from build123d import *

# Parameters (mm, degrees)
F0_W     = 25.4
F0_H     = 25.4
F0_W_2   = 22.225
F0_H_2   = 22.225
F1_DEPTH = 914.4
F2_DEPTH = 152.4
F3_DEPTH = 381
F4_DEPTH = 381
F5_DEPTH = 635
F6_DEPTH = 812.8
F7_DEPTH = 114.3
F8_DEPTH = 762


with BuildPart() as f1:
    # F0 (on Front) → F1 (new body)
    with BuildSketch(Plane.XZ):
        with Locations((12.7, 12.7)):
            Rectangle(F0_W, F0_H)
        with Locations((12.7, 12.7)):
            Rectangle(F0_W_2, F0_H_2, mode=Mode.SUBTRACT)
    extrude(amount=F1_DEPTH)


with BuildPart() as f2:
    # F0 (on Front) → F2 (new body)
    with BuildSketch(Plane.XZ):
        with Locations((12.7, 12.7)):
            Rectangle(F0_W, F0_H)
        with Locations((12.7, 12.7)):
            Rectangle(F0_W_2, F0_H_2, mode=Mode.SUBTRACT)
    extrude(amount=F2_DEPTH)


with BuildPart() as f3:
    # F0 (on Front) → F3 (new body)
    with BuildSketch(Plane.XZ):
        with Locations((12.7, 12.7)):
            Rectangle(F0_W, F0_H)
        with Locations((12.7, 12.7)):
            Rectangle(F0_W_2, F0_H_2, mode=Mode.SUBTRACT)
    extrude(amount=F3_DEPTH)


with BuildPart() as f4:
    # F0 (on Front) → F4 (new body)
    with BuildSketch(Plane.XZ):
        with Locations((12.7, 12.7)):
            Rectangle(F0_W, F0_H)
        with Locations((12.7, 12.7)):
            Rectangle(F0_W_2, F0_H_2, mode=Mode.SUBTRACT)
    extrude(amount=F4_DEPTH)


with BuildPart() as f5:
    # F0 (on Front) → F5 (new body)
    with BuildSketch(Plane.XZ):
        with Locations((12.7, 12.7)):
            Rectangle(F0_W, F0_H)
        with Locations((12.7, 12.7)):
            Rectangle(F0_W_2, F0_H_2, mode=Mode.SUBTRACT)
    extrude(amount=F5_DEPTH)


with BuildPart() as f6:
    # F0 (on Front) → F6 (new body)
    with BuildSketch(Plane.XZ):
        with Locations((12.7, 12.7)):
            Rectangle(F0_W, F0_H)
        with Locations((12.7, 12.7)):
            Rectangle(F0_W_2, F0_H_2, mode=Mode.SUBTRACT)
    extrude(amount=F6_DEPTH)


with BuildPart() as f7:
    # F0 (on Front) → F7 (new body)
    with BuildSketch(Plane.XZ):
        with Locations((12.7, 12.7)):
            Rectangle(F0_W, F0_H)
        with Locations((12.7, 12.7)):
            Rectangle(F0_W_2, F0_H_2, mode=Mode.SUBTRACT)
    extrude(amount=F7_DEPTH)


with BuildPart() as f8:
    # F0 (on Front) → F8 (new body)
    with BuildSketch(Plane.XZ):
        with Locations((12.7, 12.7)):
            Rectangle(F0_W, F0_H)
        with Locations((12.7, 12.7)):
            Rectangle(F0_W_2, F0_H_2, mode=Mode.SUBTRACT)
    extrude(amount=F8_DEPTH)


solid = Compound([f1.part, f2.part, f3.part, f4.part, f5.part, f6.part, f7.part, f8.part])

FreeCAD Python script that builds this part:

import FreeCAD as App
import Part
import Sketcher
from FreeCAD import Vector
Q = App.Units.Quantity

doc = App.newDocument("Part")
body = doc.addObject("PartDesign::Body", "Body")

sketch1 = body.newObject("Sketcher::SketchObject", "Sketch")
sketch1.AttachmentSupport = (doc.getObject("XZ_Plane"), [""])
sketch1.MapMode = "FlatFace"
sketch1.addGeometry(Part.LineSegment(Vector(0, 25, 0), Vector(0, 0, 0)), False)
sketch1.addGeometry(Part.LineSegment(Vector(0, 0, 0), Vector(25, 0, 0)), False)
sketch1.addGeometry(Part.LineSegment(Vector(25, 0, 0), Vector(25, 25, 0)), False)
sketch1.addGeometry(Part.LineSegment(Vector(25, 25, 0), Vector(0, 25, 0)), False)
sketch1.addGeometry(Part.LineSegment(Vector(24, 2, 0), Vector(2, 2, 0)), False)
sketch1.addGeometry(Part.LineSegment(Vector(2, 2, 0), Vector(2, 24, 0)), False)
sketch1.addGeometry(Part.LineSegment(Vector(2, 24, 0), Vector(24, 24, 0)), False)
sketch1.addGeometry(Part.LineSegment(Vector(24, 24, 0), Vector(24, 2, 0)), False)
sketch1.addConstraint(Sketcher.Constraint("Coincident", 0, 2, 1, 1))
sketch1.addConstraint(Sketcher.Constraint("Coincident", 1, 2, 2, 1))
sketch1.addConstraint(Sketcher.Constraint("Coincident", 2, 2, 3, 1))
sketch1.addConstraint(Sketcher.Constraint("Coincident", 3, 2, 0, 1))
sketch1.addConstraint(Sketcher.Constraint("Coincident", 4, 2, 5, 1))
sketch1.addConstraint(Sketcher.Constraint("Coincident", 5, 2, 6, 1))
sketch1.addConstraint(Sketcher.Constraint("Coincident", 6, 2, 7, 1))
sketch1.addConstraint(Sketcher.Constraint("Coincident", 7, 2, 4, 1))
sketch1.addConstraint(Sketcher.Constraint("Vertical", 0))
sketch1.addConstraint(Sketcher.Constraint("Horizontal", 1))
sketch1.addConstraint(Sketcher.Constraint("Vertical", 2))
sketch1.addConstraint(Sketcher.Constraint("Horizontal", 3))
sketch1.addConstraint(Sketcher.Constraint("Horizontal", 4))
sketch1.addConstraint(Sketcher.Constraint("Vertical", 5))
sketch1.addConstraint(Sketcher.Constraint("Horizontal", 6))
sketch1.addConstraint(Sketcher.Constraint("Vertical", 7))
sketch1.addConstraint(Sketcher.Constraint("Coincident", 0, 2, -1, 1))
sketch1.addConstraint(Sketcher.Constraint("Equal", 3, 0))
sketch1.addConstraint(Sketcher.Constraint("Equal", 6, 5))
sketch1.addConstraint(Sketcher.Constraint("DistanceX", 1, 1, 1, 2, Q("1 in")))
sketch1.addConstraint(Sketcher.Constraint("DistanceX", 4, 2, 4, 1, Q("0.875 in")))
sketch1.addConstraint(Sketcher.Constraint("DistanceX", -1, 1, 4, 2, Q("0.0625 in")))
sketch1.addConstraint(Sketcher.Constraint("DistanceY", -1, 1, 4, 2, Q("0.0625 in")))
pad1 = body.newObject("PartDesign::Pad", "Pad")
pad1.Profile = sketch1
pad1.Length = Q("36 in")
body2 = doc.addObject("PartDesign::Body", "Body001")

sketch2 = body2.newObject("Sketcher::SketchObject", "Sketch001")
sketch2.AttachmentSupport = (doc.getObject("XZ_Plane001"), [""])
sketch2.MapMode = "FlatFace"
sketch2.addGeometry(Part.LineSegment(Vector(0, 25, 0), Vector(0, 0, 0)), False)
sketch2.addGeometry(Part.LineSegment(Vector(0, 0, 0), Vector(25, 0, 0)), False)
sketch2.addGeometry(Part.LineSegment(Vector(25, 0, 0), Vector(25, 25, 0)), False)
sketch2.addGeometry(Part.LineSegment(Vector(25, 25, 0), Vector(0, 25, 0)), False)
sketch2.addGeometry(Part.LineSegment(Vector(24, 2, 0), Vector(2, 2, 0)), False)
sketch2.addGeometry(Part.LineSegment(Vector(2, 2, 0), Vector(2, 24, 0)), False)
sketch2.addGeometry(Part.LineSegment(Vector(2, 24, 0), Vector(24, 24, 0)), False)
sketch2.addGeometry(Part.LineSegment(Vector(24, 24, 0), Vector(24, 2, 0)), False)
sketch2.addConstraint(Sketcher.Constraint("Coincident", 0, 2, 1, 1))
sketch2.addConstraint(Sketcher.Constraint("Coincident", 1, 2, 2, 1))
sketch2.addConstraint(Sketcher.Constraint("Coincident", 2, 2, 3, 1))
sketch2.addConstraint(Sketcher.Constraint("Coincident", 3, 2, 0, 1))
sketch2.addConstraint(Sketcher.Constraint("Coincident", 4, 2, 5, 1))
sketch2.addConstraint(Sketcher.Constraint("Coincident", 5, 2, 6, 1))
sketch2.addConstraint(Sketcher.Constraint("Coincident", 6, 2, 7, 1))
sketch2.addConstraint(Sketcher.Constraint("Coincident", 7, 2, 4, 1))
sketch2.addConstraint(Sketcher.Constraint("Vertical", 0))
sketch2.addConstraint(Sketcher.Constraint("Horizontal", 1))
sketch2.addConstraint(Sketcher.Constraint("Vertical", 2))
sketch2.addConstraint(Sketcher.Constraint("Horizontal", 3))
sketch2.addConstraint(Sketcher.Constraint("Horizontal", 4))
sketch2.addConstraint(Sketcher.Constraint("Vertical", 5))
sketch2.addConstraint(Sketcher.Constraint("Horizontal", 6))
sketch2.addConstraint(Sketcher.Constraint("Vertical", 7))
sketch2.addConstraint(Sketcher.Constraint("Coincident", 0, 2, -1, 1))
sketch2.addConstraint(Sketcher.Constraint("Equal", 3, 0))
sketch2.addConstraint(Sketcher.Constraint("Equal", 6, 5))
sketch2.addConstraint(Sketcher.Constraint("DistanceX", 1, 1, 1, 2, Q("1 in")))
sketch2.addConstraint(Sketcher.Constraint("DistanceX", 4, 2, 4, 1, Q("0.875 in")))
sketch2.addConstraint(Sketcher.Constraint("DistanceX", -1, 1, 4, 2, Q("0.0625 in")))
sketch2.addConstraint(Sketcher.Constraint("DistanceY", -1, 1, 4, 2, Q("0.0625 in")))
pad2 = body2.newObject("PartDesign::Pad", "Pad001")
pad2.Profile = sketch2
pad2.Length = Q("6 in")
body3 = doc.addObject("PartDesign::Body", "Body002")

sketch3 = body3.newObject("Sketcher::SketchObject", "Sketch002")
sketch3.AttachmentSupport = (doc.getObject("XZ_Plane002"), [""])
sketch3.MapMode = "FlatFace"
sketch3.addGeometry(Part.LineSegment(Vector(0, 25, 0), Vector(0, 0, 0)), False)
sketch3.addGeometry(Part.LineSegment(Vector(0, 0, 0), Vector(25, 0, 0)), False)
sketch3.addGeometry(Part.LineSegment(Vector(25, 0, 0), Vector(25, 25, 0)), False)
sketch3.addGeometry(Part.LineSegment(Vector(25, 25, 0), Vector(0, 25, 0)), False)
sketch3.addGeometry(Part.LineSegment(Vector(24, 2, 0), Vector(2, 2, 0)), False)
sketch3.addGeometry(Part.LineSegment(Vector(2, 2, 0), Vector(2, 24, 0)), False)
sketch3.addGeometry(Part.LineSegment(Vector(2, 24, 0), Vector(24, 24, 0)), False)
sketch3.addGeometry(Part.LineSegment(Vector(24, 24, 0), Vector(24, 2, 0)), False)
sketch3.addConstraint(Sketcher.Constraint("Coincident", 0, 2, 1, 1))
sketch3.addConstraint(Sketcher.Constraint("Coincident", 1, 2, 2, 1))
sketch3.addConstraint(Sketcher.Constraint("Coincident", 2, 2, 3, 1))
sketch3.addConstraint(Sketcher.Constraint("Coincident", 3, 2, 0, 1))
sketch3.addConstraint(Sketcher.Constraint("Coincident", 4, 2, 5, 1))
sketch3.addConstraint(Sketcher.Constraint("Coincident", 5, 2, 6, 1))
sketch3.addConstraint(Sketcher.Constraint("Coincident", 6, 2, 7, 1))
sketch3.addConstraint(Sketcher.Constraint("Coincident", 7, 2, 4, 1))
sketch3.addConstraint(Sketcher.Constraint("Vertical", 0))
sketch3.addConstraint(Sketcher.Constraint("Horizontal", 1))
sketch3.addConstraint(Sketcher.Constraint("Vertical", 2))
sketch3.addConstraint(Sketcher.Constraint("Horizontal", 3))
sketch3.addConstraint(Sketcher.Constraint("Horizontal", 4))
sketch3.addConstraint(Sketcher.Constraint("Vertical", 5))
sketch3.addConstraint(Sketcher.Constraint("Horizontal", 6))
sketch3.addConstraint(Sketcher.Constraint("Vertical", 7))
sketch3.addConstraint(Sketcher.Constraint("Coincident", 0, 2, -1, 1))
sketch3.addConstraint(Sketcher.Constraint("Equal", 3, 0))
sketch3.addConstraint(Sketcher.Constraint("Equal", 6, 5))
sketch3.addConstraint(Sketcher.Constraint("DistanceX", 1, 1, 1, 2, Q("1 in")))
sketch3.addConstraint(Sketcher.Constraint("DistanceX", 4, 2, 4, 1, Q("0.875 in")))
sketch3.addConstraint(Sketcher.Constraint("DistanceX", -1, 1, 4, 2, Q("0.0625 in")))
sketch3.addConstraint(Sketcher.Constraint("DistanceY", -1, 1, 4, 2, Q("0.0625 in")))
pad3 = body3.newObject("PartDesign::Pad", "Pad002")
pad3.Profile = sketch3
pad3.Length = Q("15 in")
body4 = doc.addObject("PartDesign::Body", "Body003")

sketch4 = body4.newObject("Sketcher::SketchObject", "Sketch003")
sketch4.AttachmentSupport = (doc.getObject("XZ_Plane003"), [""])
sketch4.MapMode = "FlatFace"
sketch4.addGeometry(Part.LineSegment(Vector(0, 25, 0), Vector(0, 0, 0)), False)
sketch4.addGeometry(Part.LineSegment(Vector(0, 0, 0), Vector(25, 0, 0)), False)
sketch4.addGeometry(Part.LineSegment(Vector(25, 0, 0), Vector(25, 25, 0)), False)
sketch4.addGeometry(Part.LineSegment(Vector(25, 25, 0), Vector(0, 25, 0)), False)
sketch4.addGeometry(Part.LineSegment(Vector(24, 2, 0), Vector(2, 2, 0)), False)
sketch4.addGeometry(Part.LineSegment(Vector(2, 2, 0), Vector(2, 24, 0)), False)
sketch4.addGeometry(Part.LineSegment(Vector(2, 24, 0), Vector(24, 24, 0)), False)
sketch4.addGeometry(Part.LineSegment(Vector(24, 24, 0), Vector(24, 2, 0)), False)
sketch4.addConstraint(Sketcher.Constraint("Coincident", 0, 2, 1, 1))
sketch4.addConstraint(Sketcher.Constraint("Coincident", 1, 2, 2, 1))
sketch4.addConstraint(Sketcher.Constraint("Coincident", 2, 2, 3, 1))
sketch4.addConstraint(Sketcher.Constraint("Coincident", 3, 2, 0, 1))
sketch4.addConstraint(Sketcher.Constraint("Coincident", 4, 2, 5, 1))
sketch4.addConstraint(Sketcher.Constraint("Coincident", 5, 2, 6, 1))
sketch4.addConstraint(Sketcher.Constraint("Coincident", 6, 2, 7, 1))
sketch4.addConstraint(Sketcher.Constraint("Coincident", 7, 2, 4, 1))
sketch4.addConstraint(Sketcher.Constraint("Vertical", 0))
sketch4.addConstraint(Sketcher.Constraint("Horizontal", 1))
sketch4.addConstraint(Sketcher.Constraint("Vertical", 2))
sketch4.addConstraint(Sketcher.Constraint("Horizontal", 3))
sketch4.addConstraint(Sketcher.Constraint("Horizontal", 4))
sketch4.addConstraint(Sketcher.Constraint("Vertical", 5))
sketch4.addConstraint(Sketcher.Constraint("Horizontal", 6))
sketch4.addConstraint(Sketcher.Constraint("Vertical", 7))
sketch4.addConstraint(Sketcher.Constraint("Coincident", 0, 2, -1, 1))
sketch4.addConstraint(Sketcher.Constraint("Equal", 3, 0))
sketch4.addConstraint(Sketcher.Constraint("Equal", 6, 5))
sketch4.addConstraint(Sketcher.Constraint("DistanceX", 1, 1, 1, 2, Q("1 in")))
sketch4.addConstraint(Sketcher.Constraint("DistanceX", 4, 2, 4, 1, Q("0.875 in")))
sketch4.addConstraint(Sketcher.Constraint("DistanceX", -1, 1, 4, 2, Q("0.0625 in")))
sketch4.addConstraint(Sketcher.Constraint("DistanceY", -1, 1, 4, 2, Q("0.0625 in")))
pad4 = body4.newObject("PartDesign::Pad", "Pad003")
pad4.Profile = sketch4
pad4.Length = Q("15 in")
body5 = doc.addObject("PartDesign::Body", "Body004")

sketch5 = body5.newObject("Sketcher::SketchObject", "Sketch004")
sketch5.AttachmentSupport = (doc.getObject("XZ_Plane004"), [""])
sketch5.MapMode = "FlatFace"
sketch5.addGeometry(Part.LineSegment(Vector(0, 25, 0), Vector(0, 0, 0)), False)
sketch5.addGeometry(Part.LineSegment(Vector(0, 0, 0), Vector(25, 0, 0)), False)
sketch5.addGeometry(Part.LineSegment(Vector(25, 0, 0), Vector(25, 25, 0)), False)
sketch5.addGeometry(Part.LineSegment(Vector(25, 25, 0), Vector(0, 25, 0)), False)
sketch5.addGeometry(Part.LineSegment(Vector(24, 2, 0), Vector(2, 2, 0)), False)
sketch5.addGeometry(Part.LineSegment(Vector(2, 2, 0), Vector(2, 24, 0)), False)
sketch5.addGeometry(Part.LineSegment(Vector(2, 24, 0), Vector(24, 24, 0)), False)
sketch5.addGeometry(Part.LineSegment(Vector(24, 24, 0), Vector(24, 2, 0)), False)
sketch5.addConstraint(Sketcher.Constraint("Coincident", 0, 2, 1, 1))
sketch5.addConstraint(Sketcher.Constraint("Coincident", 1, 2, 2, 1))
sketch5.addConstraint(Sketcher.Constraint("Coincident", 2, 2, 3, 1))
sketch5.addConstraint(Sketcher.Constraint("Coincident", 3, 2, 0, 1))
sketch5.addConstraint(Sketcher.Constraint("Coincident", 4, 2, 5, 1))
sketch5.addConstraint(Sketcher.Constraint("Coincident", 5, 2, 6, 1))
sketch5.addConstraint(Sketcher.Constraint("Coincident", 6, 2, 7, 1))
sketch5.addConstraint(Sketcher.Constraint("Coincident", 7, 2, 4, 1))
sketch5.addConstraint(Sketcher.Constraint("Vertical", 0))
sketch5.addConstraint(Sketcher.Constraint("Horizontal", 1))
sketch5.addConstraint(Sketcher.Constraint("Vertical", 2))
sketch5.addConstraint(Sketcher.Constraint("Horizontal", 3))
sketch5.addConstraint(Sketcher.Constraint("Horizontal", 4))
sketch5.addConstraint(Sketcher.Constraint("Vertical", 5))
sketch5.addConstraint(Sketcher.Constraint("Horizontal", 6))
sketch5.addConstraint(Sketcher.Constraint("Vertical", 7))
sketch5.addConstraint(Sketcher.Constraint("Coincident", 0, 2, -1, 1))
sketch5.addConstraint(Sketcher.Constraint("Equal", 3, 0))
sketch5.addConstraint(Sketcher.Constraint("Equal", 6, 5))
sketch5.addConstraint(Sketcher.Constraint("DistanceX", 1, 1, 1, 2, Q("1 in")))
sketch5.addConstraint(Sketcher.Constraint("DistanceX", 4, 2, 4, 1, Q("0.875 in")))
sketch5.addConstraint(Sketcher.Constraint("DistanceX", -1, 1, 4, 2, Q("0.0625 in")))
sketch5.addConstraint(Sketcher.Constraint("DistanceY", -1, 1, 4, 2, Q("0.0625 in")))
pad5 = body5.newObject("PartDesign::Pad", "Pad004")
pad5.Profile = sketch5
pad5.Length = Q("25 in")
body6 = doc.addObject("PartDesign::Body", "Body005")

sketch6 = body6.newObject("Sketcher::SketchObject", "Sketch005")
sketch6.AttachmentSupport = (doc.getObject("XZ_Plane005"), [""])
sketch6.MapMode = "FlatFace"
sketch6.addGeometry(Part.LineSegment(Vector(0, 25, 0), Vector(0, 0, 0)), False)
sketch6.addGeometry(Part.LineSegment(Vector(0, 0, 0), Vector(25, 0, 0)), False)
sketch6.addGeometry(Part.LineSegment(Vector(25, 0, 0), Vector(25, 25, 0)), False)
sketch6.addGeometry(Part.LineSegment(Vector(25, 25, 0), Vector(0, 25, 0)), False)
sketch6.addGeometry(Part.LineSegment(Vector(24, 2, 0), Vector(2, 2, 0)), False)
sketch6.addGeometry(Part.LineSegment(Vector(2, 2, 0), Vector(2, 24, 0)), False)
sketch6.addGeometry(Part.LineSegment(Vector(2, 24, 0), Vector(24, 24, 0)), False)
sketch6.addGeometry(Part.LineSegment(Vector(24, 24, 0), Vector(24, 2, 0)), False)
sketch6.addConstraint(Sketcher.Constraint("Coincident", 0, 2, 1, 1))
sketch6.addConstraint(Sketcher.Constraint("Coincident", 1, 2, 2, 1))
sketch6.addConstraint(Sketcher.Constraint("Coincident", 2, 2, 3, 1))
sketch6.addConstraint(Sketcher.Constraint("Coincident", 3, 2, 0, 1))
sketch6.addConstraint(Sketcher.Constraint("Coincident", 4, 2, 5, 1))
sketch6.addConstraint(Sketcher.Constraint("Coincident", 5, 2, 6, 1))
sketch6.addConstraint(Sketcher.Constraint("Coincident", 6, 2, 7, 1))
sketch6.addConstraint(Sketcher.Constraint("Coincident", 7, 2, 4, 1))
sketch6.addConstraint(Sketcher.Constraint("Vertical", 0))
sketch6.addConstraint(Sketcher.Constraint("Horizontal", 1))
sketch6.addConstraint(Sketcher.Constraint("Vertical", 2))
sketch6.addConstraint(Sketcher.Constraint("Horizontal", 3))
sketch6.addConstraint(Sketcher.Constraint("Horizontal", 4))
sketch6.addConstraint(Sketcher.Constraint("Vertical", 5))
sketch6.addConstraint(Sketcher.Constraint("Horizontal", 6))
sketch6.addConstraint(Sketcher.Constraint("Vertical", 7))
sketch6.addConstraint(Sketcher.Constraint("Coincident", 0, 2, -1, 1))
sketch6.addConstraint(Sketcher.Constraint("Equal", 3, 0))
sketch6.addConstraint(Sketcher.Constraint("Equal", 6, 5))
sketch6.addConstraint(Sketcher.Constraint("DistanceX", 1, 1, 1, 2, Q("1 in")))
sketch6.addConstraint(Sketcher.Constraint("DistanceX", 4, 2, 4, 1, Q("0.875 in")))
sketch6.addConstraint(Sketcher.Constraint("DistanceX", -1, 1, 4, 2, Q("0.0625 in")))
sketch6.addConstraint(Sketcher.Constraint("DistanceY", -1, 1, 4, 2, Q("0.0625 in")))
pad6 = body6.newObject("PartDesign::Pad", "Pad005")
pad6.Profile = sketch6
pad6.Length = Q("32 in")
body7 = doc.addObject("PartDesign::Body", "Body006")

sketch7 = body7.newObject("Sketcher::SketchObject", "Sketch006")
sketch7.AttachmentSupport = (doc.getObject("XZ_Plane006"), [""])
sketch7.MapMode = "FlatFace"
sketch7.addGeometry(Part.LineSegment(Vector(0, 25, 0), Vector(0, 0, 0)), False)
sketch7.addGeometry(Part.LineSegment(Vector(0, 0, 0), Vector(25, 0, 0)), False)
sketch7.addGeometry(Part.LineSegment(Vector(25, 0, 0), Vector(25, 25, 0)), False)
sketch7.addGeometry(Part.LineSegment(Vector(25, 25, 0), Vector(0, 25, 0)), False)
sketch7.addGeometry(Part.LineSegment(Vector(24, 2, 0), Vector(2, 2, 0)), False)
sketch7.addGeometry(Part.LineSegment(Vector(2, 2, 0), Vector(2, 24, 0)), False)
sketch7.addGeometry(Part.LineSegment(Vector(2, 24, 0), Vector(24, 24, 0)), False)
sketch7.addGeometry(Part.LineSegment(Vector(24, 24, 0), Vector(24, 2, 0)), False)
sketch7.addConstraint(Sketcher.Constraint("Coincident", 0, 2, 1, 1))
sketch7.addConstraint(Sketcher.Constraint("Coincident", 1, 2, 2, 1))
sketch7.addConstraint(Sketcher.Constraint("Coincident", 2, 2, 3, 1))
sketch7.addConstraint(Sketcher.Constraint("Coincident", 3, 2, 0, 1))
sketch7.addConstraint(Sketcher.Constraint("Coincident", 4, 2, 5, 1))
sketch7.addConstraint(Sketcher.Constraint("Coincident", 5, 2, 6, 1))
sketch7.addConstraint(Sketcher.Constraint("Coincident", 6, 2, 7, 1))
sketch7.addConstraint(Sketcher.Constraint("Coincident", 7, 2, 4, 1))
sketch7.addConstraint(Sketcher.Constraint("Vertical", 0))
sketch7.addConstraint(Sketcher.Constraint("Horizontal", 1))
sketch7.addConstraint(Sketcher.Constraint("Vertical", 2))
sketch7.addConstraint(Sketcher.Constraint("Horizontal", 3))
sketch7.addConstraint(Sketcher.Constraint("Horizontal", 4))
sketch7.addConstraint(Sketcher.Constraint("Vertical", 5))
sketch7.addConstraint(Sketcher.Constraint("Horizontal", 6))
sketch7.addConstraint(Sketcher.Constraint("Vertical", 7))
sketch7.addConstraint(Sketcher.Constraint("Coincident", 0, 2, -1, 1))
sketch7.addConstraint(Sketcher.Constraint("Equal", 3, 0))
sketch7.addConstraint(Sketcher.Constraint("Equal", 6, 5))
sketch7.addConstraint(Sketcher.Constraint("DistanceX", 1, 1, 1, 2, Q("1 in")))
sketch7.addConstraint(Sketcher.Constraint("DistanceX", 4, 2, 4, 1, Q("0.875 in")))
sketch7.addConstraint(Sketcher.Constraint("DistanceX", -1, 1, 4, 2, Q("0.0625 in")))
sketch7.addConstraint(Sketcher.Constraint("DistanceY", -1, 1, 4, 2, Q("0.0625 in")))
pad7 = body7.newObject("PartDesign::Pad", "Pad006")
pad7.Profile = sketch7
pad7.Length = Q("4.5 in")
body8 = doc.addObject("PartDesign::Body", "Body007")

sketch8 = body8.newObject("Sketcher::SketchObject", "Sketch007")
sketch8.AttachmentSupport = (doc.getObject("XZ_Plane007"), [""])
sketch8.MapMode = "FlatFace"
sketch8.addGeometry(Part.LineSegment(Vector(0, 25, 0), Vector(0, 0, 0)), False)
sketch8.addGeometry(Part.LineSegment(Vector(0, 0, 0), Vector(25, 0, 0)), False)
sketch8.addGeometry(Part.LineSegment(Vector(25, 0, 0), Vector(25, 25, 0)), False)
sketch8.addGeometry(Part.LineSegment(Vector(25, 25, 0), Vector(0, 25, 0)), False)
sketch8.addGeometry(Part.LineSegment(Vector(24, 2, 0), Vector(2, 2, 0)), False)
sketch8.addGeometry(Part.LineSegment(Vector(2, 2, 0), Vector(2, 24, 0)), False)
sketch8.addGeometry(Part.LineSegment(Vector(2, 24, 0), Vector(24, 24, 0)), False)
sketch8.addGeometry(Part.LineSegment(Vector(24, 24, 0), Vector(24, 2, 0)), False)
sketch8.addConstraint(Sketcher.Constraint("Coincident", 0, 2, 1, 1))
sketch8.addConstraint(Sketcher.Constraint("Coincident", 1, 2, 2, 1))
sketch8.addConstraint(Sketcher.Constraint("Coincident", 2, 2, 3, 1))
sketch8.addConstraint(Sketcher.Constraint("Coincident", 3, 2, 0, 1))
sketch8.addConstraint(Sketcher.Constraint("Coincident", 4, 2, 5, 1))
sketch8.addConstraint(Sketcher.Constraint("Coincident", 5, 2, 6, 1))
sketch8.addConstraint(Sketcher.Constraint("Coincident", 6, 2, 7, 1))
sketch8.addConstraint(Sketcher.Constraint("Coincident", 7, 2, 4, 1))
sketch8.addConstraint(Sketcher.Constraint("Vertical", 0))
sketch8.addConstraint(Sketcher.Constraint("Horizontal", 1))
sketch8.addConstraint(Sketcher.Constraint("Vertical", 2))
sketch8.addConstraint(Sketcher.Constraint("Horizontal", 3))
sketch8.addConstraint(Sketcher.Constraint("Horizontal", 4))
sketch8.addConstraint(Sketcher.Constraint("Vertical", 5))
sketch8.addConstraint(Sketcher.Constraint("Horizontal", 6))
sketch8.addConstraint(Sketcher.Constraint("Vertical", 7))
sketch8.addConstraint(Sketcher.Constraint("Coincident", 0, 2, -1, 1))
sketch8.addConstraint(Sketcher.Constraint("Equal", 3, 0))
sketch8.addConstraint(Sketcher.Constraint("Equal", 6, 5))
sketch8.addConstraint(Sketcher.Constraint("DistanceX", 1, 1, 1, 2, Q("1 in")))
sketch8.addConstraint(Sketcher.Constraint("DistanceX", 4, 2, 4, 1, Q("0.875 in")))
sketch8.addConstraint(Sketcher.Constraint("DistanceX", -1, 1, 4, 2, Q("0.0625 in")))
sketch8.addConstraint(Sketcher.Constraint("DistanceY", -1, 1, 4, 2, Q("0.0625 in")))
pad8 = body8.newObject("PartDesign::Pad", "Pad007")
pad8.Profile = sketch8
pad8.Length = Q("30 in")

doc.recompute()
